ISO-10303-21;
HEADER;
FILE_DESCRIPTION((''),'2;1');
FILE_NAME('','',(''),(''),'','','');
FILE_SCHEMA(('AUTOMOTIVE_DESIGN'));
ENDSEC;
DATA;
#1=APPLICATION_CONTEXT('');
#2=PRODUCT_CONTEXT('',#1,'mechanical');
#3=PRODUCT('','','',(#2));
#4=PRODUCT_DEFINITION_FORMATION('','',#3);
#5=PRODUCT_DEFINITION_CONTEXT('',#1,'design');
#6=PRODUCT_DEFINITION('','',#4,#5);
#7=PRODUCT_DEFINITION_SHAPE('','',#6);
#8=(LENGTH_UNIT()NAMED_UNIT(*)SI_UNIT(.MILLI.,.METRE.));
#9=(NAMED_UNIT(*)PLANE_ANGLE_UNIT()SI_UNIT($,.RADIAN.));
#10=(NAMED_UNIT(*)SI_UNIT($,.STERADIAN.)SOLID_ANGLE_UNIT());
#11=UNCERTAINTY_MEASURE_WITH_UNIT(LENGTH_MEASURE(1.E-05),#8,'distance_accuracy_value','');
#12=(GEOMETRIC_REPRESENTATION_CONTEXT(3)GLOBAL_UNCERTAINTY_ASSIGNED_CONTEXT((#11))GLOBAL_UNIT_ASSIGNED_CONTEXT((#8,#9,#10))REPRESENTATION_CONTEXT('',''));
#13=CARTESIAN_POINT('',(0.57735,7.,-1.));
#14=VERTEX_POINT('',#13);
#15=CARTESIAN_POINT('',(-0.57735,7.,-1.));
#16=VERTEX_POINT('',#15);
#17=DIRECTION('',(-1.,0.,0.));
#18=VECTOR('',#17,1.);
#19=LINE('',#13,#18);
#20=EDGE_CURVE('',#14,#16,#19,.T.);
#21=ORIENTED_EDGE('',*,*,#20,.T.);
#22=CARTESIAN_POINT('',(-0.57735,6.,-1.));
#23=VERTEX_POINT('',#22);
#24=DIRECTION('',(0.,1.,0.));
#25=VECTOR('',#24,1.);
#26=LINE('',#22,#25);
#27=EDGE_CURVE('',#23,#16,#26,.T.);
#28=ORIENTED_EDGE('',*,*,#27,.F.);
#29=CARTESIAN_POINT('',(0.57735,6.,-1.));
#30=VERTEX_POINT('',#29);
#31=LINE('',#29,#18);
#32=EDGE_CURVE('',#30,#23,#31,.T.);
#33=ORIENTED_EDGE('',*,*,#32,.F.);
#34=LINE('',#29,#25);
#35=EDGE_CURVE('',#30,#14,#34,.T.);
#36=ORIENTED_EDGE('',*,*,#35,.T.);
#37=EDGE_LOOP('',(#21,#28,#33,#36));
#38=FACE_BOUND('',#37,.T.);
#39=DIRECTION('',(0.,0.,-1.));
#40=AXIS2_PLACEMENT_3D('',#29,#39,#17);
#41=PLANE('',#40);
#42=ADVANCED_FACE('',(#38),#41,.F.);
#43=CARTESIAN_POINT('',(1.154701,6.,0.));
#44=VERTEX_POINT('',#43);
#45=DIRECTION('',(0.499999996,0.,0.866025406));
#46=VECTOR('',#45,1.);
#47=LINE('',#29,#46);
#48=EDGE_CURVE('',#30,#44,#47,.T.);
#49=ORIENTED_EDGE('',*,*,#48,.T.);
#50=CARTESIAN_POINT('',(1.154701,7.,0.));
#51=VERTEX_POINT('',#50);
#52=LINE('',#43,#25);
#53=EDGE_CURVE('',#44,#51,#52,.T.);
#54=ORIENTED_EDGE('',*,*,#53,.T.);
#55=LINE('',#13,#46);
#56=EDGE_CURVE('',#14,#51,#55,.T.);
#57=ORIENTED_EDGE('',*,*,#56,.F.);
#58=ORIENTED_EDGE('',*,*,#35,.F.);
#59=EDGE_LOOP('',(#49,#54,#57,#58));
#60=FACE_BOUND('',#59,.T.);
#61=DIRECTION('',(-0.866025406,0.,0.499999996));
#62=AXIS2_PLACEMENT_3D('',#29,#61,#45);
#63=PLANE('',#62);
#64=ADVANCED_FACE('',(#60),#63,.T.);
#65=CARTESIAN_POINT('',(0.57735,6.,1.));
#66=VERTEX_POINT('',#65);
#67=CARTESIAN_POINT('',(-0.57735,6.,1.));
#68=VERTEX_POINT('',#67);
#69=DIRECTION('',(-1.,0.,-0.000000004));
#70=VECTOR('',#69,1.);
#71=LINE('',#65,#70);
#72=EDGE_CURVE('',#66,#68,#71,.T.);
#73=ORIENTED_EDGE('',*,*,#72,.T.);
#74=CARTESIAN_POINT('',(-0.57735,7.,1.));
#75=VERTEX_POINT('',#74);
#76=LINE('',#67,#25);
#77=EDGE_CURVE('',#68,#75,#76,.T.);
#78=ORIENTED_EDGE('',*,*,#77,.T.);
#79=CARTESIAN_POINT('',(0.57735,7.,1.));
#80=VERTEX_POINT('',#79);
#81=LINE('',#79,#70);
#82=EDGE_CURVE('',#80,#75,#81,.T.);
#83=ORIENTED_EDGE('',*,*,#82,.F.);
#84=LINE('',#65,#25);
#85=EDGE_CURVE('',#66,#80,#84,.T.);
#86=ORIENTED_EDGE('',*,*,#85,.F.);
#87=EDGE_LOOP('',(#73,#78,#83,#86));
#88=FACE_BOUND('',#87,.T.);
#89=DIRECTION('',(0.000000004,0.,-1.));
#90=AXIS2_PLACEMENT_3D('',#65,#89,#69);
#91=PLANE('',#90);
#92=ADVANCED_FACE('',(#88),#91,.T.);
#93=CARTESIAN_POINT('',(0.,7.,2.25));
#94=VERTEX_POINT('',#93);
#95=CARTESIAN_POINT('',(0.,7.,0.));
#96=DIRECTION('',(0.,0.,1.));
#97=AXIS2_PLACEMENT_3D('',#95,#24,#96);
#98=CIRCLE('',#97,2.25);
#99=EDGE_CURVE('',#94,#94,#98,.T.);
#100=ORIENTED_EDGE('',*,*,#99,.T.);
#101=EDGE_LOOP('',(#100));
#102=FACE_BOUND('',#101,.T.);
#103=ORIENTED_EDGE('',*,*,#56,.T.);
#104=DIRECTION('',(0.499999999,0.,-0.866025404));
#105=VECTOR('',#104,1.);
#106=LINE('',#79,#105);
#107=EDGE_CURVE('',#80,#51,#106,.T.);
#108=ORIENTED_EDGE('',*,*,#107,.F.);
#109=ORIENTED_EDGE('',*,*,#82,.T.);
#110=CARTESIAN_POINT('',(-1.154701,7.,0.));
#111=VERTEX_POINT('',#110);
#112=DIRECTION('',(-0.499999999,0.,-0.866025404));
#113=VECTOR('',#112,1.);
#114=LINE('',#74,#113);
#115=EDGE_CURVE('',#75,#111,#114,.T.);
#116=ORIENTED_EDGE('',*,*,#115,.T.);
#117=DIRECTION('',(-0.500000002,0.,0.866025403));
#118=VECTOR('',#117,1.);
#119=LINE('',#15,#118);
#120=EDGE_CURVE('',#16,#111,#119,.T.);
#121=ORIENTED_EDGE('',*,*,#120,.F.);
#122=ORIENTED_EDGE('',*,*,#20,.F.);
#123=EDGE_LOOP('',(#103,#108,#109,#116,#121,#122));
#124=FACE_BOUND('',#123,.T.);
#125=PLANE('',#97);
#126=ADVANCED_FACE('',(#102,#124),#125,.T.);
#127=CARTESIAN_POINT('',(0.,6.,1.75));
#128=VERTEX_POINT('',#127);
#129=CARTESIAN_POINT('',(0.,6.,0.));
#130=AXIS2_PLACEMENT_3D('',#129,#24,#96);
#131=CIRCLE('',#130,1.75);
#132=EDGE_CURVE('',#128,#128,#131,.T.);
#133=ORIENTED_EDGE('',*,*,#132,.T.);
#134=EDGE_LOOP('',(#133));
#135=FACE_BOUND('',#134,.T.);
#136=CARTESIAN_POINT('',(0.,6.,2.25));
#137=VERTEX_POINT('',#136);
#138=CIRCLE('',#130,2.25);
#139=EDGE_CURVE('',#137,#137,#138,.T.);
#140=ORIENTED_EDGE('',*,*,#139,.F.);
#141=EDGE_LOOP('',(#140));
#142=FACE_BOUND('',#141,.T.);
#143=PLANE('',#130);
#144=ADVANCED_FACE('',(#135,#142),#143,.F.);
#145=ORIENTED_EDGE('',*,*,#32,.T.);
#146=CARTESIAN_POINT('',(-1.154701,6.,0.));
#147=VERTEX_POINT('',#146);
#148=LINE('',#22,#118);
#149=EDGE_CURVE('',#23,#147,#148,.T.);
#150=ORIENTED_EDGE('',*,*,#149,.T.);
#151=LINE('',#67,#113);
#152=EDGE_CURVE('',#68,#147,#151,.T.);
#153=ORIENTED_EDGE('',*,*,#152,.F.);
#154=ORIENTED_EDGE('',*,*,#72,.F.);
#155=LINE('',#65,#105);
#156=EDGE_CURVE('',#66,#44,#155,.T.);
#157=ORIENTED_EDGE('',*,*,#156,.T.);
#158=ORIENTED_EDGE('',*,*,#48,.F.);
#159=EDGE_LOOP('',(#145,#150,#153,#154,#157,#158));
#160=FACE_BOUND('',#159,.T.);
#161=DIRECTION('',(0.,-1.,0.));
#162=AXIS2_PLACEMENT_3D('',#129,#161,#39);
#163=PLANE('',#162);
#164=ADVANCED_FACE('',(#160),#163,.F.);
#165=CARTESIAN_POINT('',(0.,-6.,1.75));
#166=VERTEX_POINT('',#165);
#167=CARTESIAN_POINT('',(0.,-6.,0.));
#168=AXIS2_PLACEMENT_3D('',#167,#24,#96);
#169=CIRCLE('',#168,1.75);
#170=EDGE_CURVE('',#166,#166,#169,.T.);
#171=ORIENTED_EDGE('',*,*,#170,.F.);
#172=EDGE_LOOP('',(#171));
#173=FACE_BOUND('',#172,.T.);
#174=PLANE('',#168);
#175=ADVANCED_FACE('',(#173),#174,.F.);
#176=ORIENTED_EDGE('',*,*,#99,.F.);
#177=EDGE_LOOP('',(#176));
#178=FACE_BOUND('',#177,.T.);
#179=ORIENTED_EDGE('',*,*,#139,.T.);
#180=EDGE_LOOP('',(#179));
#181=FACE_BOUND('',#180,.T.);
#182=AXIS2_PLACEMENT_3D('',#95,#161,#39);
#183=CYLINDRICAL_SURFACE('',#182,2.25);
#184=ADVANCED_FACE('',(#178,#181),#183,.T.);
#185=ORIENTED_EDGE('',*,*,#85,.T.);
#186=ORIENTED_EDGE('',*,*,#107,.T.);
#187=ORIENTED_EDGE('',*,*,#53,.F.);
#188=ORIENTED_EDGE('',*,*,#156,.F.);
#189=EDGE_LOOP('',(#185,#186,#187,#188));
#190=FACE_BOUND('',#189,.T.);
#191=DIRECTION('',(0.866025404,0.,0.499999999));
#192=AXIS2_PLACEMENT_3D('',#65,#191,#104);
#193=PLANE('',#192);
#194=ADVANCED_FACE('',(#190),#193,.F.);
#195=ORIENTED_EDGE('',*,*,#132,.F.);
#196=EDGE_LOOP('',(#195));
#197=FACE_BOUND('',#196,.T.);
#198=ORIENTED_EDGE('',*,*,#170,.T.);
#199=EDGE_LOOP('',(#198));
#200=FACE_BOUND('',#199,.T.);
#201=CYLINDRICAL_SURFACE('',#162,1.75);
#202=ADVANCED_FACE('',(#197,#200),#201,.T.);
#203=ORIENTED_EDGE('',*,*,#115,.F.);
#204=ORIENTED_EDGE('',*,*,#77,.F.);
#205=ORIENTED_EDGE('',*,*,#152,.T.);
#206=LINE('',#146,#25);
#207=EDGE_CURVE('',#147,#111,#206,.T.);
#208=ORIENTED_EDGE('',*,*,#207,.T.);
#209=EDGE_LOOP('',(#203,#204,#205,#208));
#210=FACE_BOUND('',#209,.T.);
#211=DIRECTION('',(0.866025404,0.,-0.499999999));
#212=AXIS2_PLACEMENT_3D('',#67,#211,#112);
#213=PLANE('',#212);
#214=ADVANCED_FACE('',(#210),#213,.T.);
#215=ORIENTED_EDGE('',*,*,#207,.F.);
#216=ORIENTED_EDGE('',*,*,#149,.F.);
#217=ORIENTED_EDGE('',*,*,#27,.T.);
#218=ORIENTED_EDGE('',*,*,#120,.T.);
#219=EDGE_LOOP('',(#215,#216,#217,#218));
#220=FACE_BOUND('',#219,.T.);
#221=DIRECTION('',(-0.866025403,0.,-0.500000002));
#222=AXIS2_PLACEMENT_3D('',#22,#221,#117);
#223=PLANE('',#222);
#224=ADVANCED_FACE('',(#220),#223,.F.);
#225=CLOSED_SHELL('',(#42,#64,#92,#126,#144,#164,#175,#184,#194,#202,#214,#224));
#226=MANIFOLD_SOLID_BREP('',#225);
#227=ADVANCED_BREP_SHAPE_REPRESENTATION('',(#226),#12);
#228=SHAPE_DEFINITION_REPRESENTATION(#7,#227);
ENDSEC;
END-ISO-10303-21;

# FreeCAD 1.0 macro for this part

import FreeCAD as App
import Part
import Sketcher

V = App.Vector
Q = App.Units.Quantity


def add_polygon(sketch, points):
    """Adds a closed chain of lines whose ends are joined by coincident constraints."""
    first, n = sketch.GeometryCount, len(points)
    for a, b in zip(points, points[1:] + points[:1]):
        sketch.addGeometry(Part.LineSegment(App.Vector(*a, 0), App.Vector(*b, 0)), False)
    for i in range(n):
        sketch.addConstraint(Sketcher.Constraint("Coincident", first + i, 2, first + (i + 1) % n, 1))

doc = App.newDocument("Part")
params = doc.addObject("Spreadsheet::Sheet", "Params")
for row, (alias, value) in enumerate([
    ("sketch1_diameter", "3.5 mm"),
    ("pad1_length", "12 mm"),
    ("sketch2_diameter", "4.5 mm"),
    ("pad2_length", "1 mm"),
    ("pocket1_length", "1 mm"),
], start=1):
    params.set(f"A{row}", alias)
    params.set(f"B{row}", "=" + value)
    params.setAlias(f"B{row}", alias)

body = doc.addObject("PartDesign::Body", "Body")

sketch1 = body.newObject("Sketcher::SketchObject", "Sketch")
sketch1.AttachmentSupport = (doc.getObject("XZ_Plane"), [""])
sketch1.MapMode = "FlatFace"
sketch1.addGeometry(Part.Circle(V(0, 0, 0), V(0, 0, 1), 1.75), False)
sketch1.addConstraint([
    Sketcher.Constraint("Coincident", 0, 3, -1, 1),
    Sketcher.Constraint("Diameter", 0, 3.5),
])
sketch1.setExpression("Constraints[1]", "Params.sketch1_diameter")
pad1 = body.newObject("PartDesign::Pad", "Pad")
pad1.Profile = sketch1
pad1.setExpression("Length", "Params.pad1_length")
pad1.Midplane = True

sketch2 = body.newObject("Sketcher::SketchObject", "Sketch001")
sketch2.AttachmentSupport = (doc.getObject("XZ_Plane"), [""])
sketch2.MapMode = "FlatFace"
sketch2.AttachmentOffset = App.Placement(V(0, 0, -6), App.Rotation())
sketch2.addGeometry(Part.Circle(V(0, 0, 0), V(0, 0, 1), 2.25), False)
sketch2.addConstraint([
    Sketcher.Constraint("Coincident", 0, 3, -1, 1),
    Sketcher.Constraint("Diameter", 0, 4.5),
])
sketch2.setExpression("Constraints[1]", "Params.sketch2_diameter")
pad2 = body.newObject("PartDesign::Pad", "Pad001")
pad2.Profile = sketch2
pad2.setExpression("Length", "Params.pad2_length")
pad2.Reversed = True

sketch3 = body.newObject("Sketcher::SketchObject", "Sketch002")
sketch3.AttachmentSupport = (doc.getObject("XZ_Plane"), [""])
sketch3.MapMode = "FlatFace"
sketch3.AttachmentOffset = App.Placement(V(0, 0, -7), App.Rotation())
add_polygon(sketch3, [(1.154701, 0), (0.57735, -1), (-0.57735, -1), (-1.154701, 0), (-0.57735, 1), (0.57735, 1)])
sketch3.addConstraint([
    Sketcher.Constraint("Horizontal", 1),
    Sketcher.Constraint("Horizontal", 4),
    Sketcher.Constraint("Symmetric", 0, 2, 3, 2, -1, 1),
    Sketcher.Constraint("Symmetric", 2, 2, 5, 2, -1, 1),
    Sketcher.Constraint("PointOnObject", 2, 2, -1),
    Sketcher.Constraint("Parallel", 2, 5),
    Sketcher.Constraint("Vertical", 1, 2, 3, 2),
    Sketcher.Constraint("Angle", 0, Q("-120 deg")),
    Sketcher.Constraint("DistanceY", 0, 2, -1, 1, 1.0),
    Sketcher.Constraint("DistanceX", 1, 2, 1, 1, 1.154701),
])
pocket1 = body.newObject("PartDesign::Pocket", "Pocket")
pocket1.Profile = sketch3
pocket1.setExpression("Length", "Params.pocket1_length")
pocket1.Reversed = True

doc.recompute()
